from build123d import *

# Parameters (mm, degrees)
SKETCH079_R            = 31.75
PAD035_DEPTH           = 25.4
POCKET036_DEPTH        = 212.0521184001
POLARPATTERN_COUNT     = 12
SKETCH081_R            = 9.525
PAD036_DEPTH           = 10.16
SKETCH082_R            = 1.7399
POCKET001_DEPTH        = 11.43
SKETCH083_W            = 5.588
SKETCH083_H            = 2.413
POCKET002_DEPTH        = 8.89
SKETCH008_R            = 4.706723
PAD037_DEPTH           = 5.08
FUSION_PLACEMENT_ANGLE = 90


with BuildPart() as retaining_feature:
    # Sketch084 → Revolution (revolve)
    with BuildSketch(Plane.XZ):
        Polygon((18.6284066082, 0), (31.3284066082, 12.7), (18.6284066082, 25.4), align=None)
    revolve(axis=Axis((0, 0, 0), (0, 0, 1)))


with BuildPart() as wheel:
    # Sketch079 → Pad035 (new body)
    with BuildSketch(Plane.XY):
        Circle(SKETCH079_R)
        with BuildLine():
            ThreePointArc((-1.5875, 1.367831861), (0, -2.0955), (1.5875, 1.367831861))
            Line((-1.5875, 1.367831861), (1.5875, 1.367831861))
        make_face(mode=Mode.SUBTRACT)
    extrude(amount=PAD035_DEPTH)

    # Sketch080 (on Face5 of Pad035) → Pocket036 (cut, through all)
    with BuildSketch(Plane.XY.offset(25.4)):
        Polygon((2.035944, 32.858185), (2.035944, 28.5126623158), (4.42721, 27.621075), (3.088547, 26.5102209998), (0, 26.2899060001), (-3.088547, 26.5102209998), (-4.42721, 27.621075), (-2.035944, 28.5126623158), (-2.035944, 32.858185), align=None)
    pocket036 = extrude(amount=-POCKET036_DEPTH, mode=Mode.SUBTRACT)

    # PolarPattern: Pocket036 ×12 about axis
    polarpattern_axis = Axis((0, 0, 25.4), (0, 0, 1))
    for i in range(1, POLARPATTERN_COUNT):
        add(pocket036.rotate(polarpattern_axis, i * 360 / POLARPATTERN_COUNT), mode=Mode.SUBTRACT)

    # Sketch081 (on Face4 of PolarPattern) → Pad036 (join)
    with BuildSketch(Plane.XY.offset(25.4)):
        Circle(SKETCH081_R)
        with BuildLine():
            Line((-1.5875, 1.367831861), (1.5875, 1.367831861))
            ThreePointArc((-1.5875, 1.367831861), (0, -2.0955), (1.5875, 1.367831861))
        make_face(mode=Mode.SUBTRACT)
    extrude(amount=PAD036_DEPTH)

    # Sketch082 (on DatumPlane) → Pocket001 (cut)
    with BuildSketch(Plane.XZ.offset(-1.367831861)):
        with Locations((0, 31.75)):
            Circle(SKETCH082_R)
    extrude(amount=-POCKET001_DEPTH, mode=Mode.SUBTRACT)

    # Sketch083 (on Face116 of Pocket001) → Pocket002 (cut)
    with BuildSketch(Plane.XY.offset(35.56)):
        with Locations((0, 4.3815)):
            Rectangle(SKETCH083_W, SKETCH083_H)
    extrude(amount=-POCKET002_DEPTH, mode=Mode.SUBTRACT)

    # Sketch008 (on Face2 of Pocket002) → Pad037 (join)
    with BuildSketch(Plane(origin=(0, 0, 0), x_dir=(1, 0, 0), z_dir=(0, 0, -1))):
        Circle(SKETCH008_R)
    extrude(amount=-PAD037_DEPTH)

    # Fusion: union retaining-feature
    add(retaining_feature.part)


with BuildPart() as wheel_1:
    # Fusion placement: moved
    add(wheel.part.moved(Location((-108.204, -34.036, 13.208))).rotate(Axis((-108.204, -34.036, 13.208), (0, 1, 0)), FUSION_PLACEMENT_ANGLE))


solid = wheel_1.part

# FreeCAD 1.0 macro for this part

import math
import FreeCAD as App
import Part
import Sketcher

V = App.Vector
Q = App.Units.Quantity


def add_polygon(sketch, points):
    """Adds a closed chain of lines whose ends are joined by coincident constraints."""
    first, n = sketch.GeometryCount, len(points)
    for a, b in zip(points, points[1:] + points[:1]):
        sketch.addGeometry(Part.LineSegment(App.Vector(*a, 0), App.Vector(*b, 0)), False)
    for i in range(n):
        sketch.addConstraint(Sketcher.Constraint("Coincident", first + i, 2, first + (i + 1) % n, 1))

doc = App.newDocument("Part")
body = doc.addObject("PartDesign::Body", "Body")

# Sketch on XZ plane
sketch1 = body.newObject("Sketcher::SketchObject", "Sketch")
sketch1.AttachmentSupport = (doc.getObject("XZ_Plane"), [""])
sketch1.MapMode = "FlatFace"
add_polygon(sketch1, [(18.628407, 0), (31.328407, 12.7), (18.628407, 25.4)])  # lines 0-2
sketch1.addConstraint(Sketcher.Constraint("Vertical", 2))
sketch1.addConstraint(Sketcher.Constraint("PointOnObject", 2, 2, -1))
sketch1.addConstraint(Sketcher.Constraint("Perpendicular", 0, 1))
sketch1.addConstraint(Sketcher.Constraint("Equal", 0, 1))
sketch1.addConstraint(Sketcher.Constraint("DistanceY", 2, 2, 2, 1, Q("1 in")))
sketch1.addConstraint(Sketcher.Constraint("DistanceX", -1, 1, 0, 2, Q("31.328407 mm")))
revolution = body.newObject("PartDesign::Revolution", "Revolution")
revolution.Profile = sketch1
revolution.ReferenceAxis = (sketch1, ["V_Axis"])
revolution.Angle = 360
body2 = doc.addObject("PartDesign::Body", "Body001")

# Sketch on XY plane
sketch2 = body2.newObject("Sketcher::SketchObject", "Sketch001")
sketch2.AttachmentSupport = (doc.getObject("XY_Plane001"), [""])
sketch2.MapMode = "FlatFace"
sketch2.addGeometry(Part.Circle(V(0, 0, 0), V(0, 0, 1), 31.75), False)
sketch2.addGeometry(Part.ArcOfCircle(Part.Circle(V(0, 0, 0), V(0, 0, 1), 2.0955), math.radians(139.250946), math.radians(400.749054)), False)
sketch2.addGeometry(Part.LineSegment(V(-1.5875, 1.367832, 0), V(1.5875, 1.367832, 0)), False)
sketch2.addConstraint(Sketcher.Constraint("Coincident", 1, 1, 2, 1))
sketch2.addConstraint(Sketcher.Constraint("Coincident", 2, 2, 1, 2))
sketch2.addConstraint(Sketcher.Constraint("Horizontal", 2))
sketch2.addConstraint(Sketcher.Constraint("Coincident", 0, 3, -1, 1))
sketch2.addConstraint(Sketcher.Constraint("Coincident", 1, 3, -1, 1))
sketch2.addConstraint(Sketcher.Constraint("Diameter", 0, Q("2.5 in")))
sketch2.addConstraint(Sketcher.Constraint("Radius", 1, Q("0.0825 in")))
sketch2.addConstraint(Sketcher.Constraint("DistanceX", 2, 1, 2, 2, Q("0.125 in")))
pad1 = body2.newObject("PartDesign::Pad", "Pad")
pad1.Profile = sketch2
pad1.Length = Q("1 in")

# Sketch on XY plane
sketch3 = body2.newObject("Sketcher::SketchObject", "Sketch002")
sketch3.AttachmentSupport = (doc.getObject("XY_Plane001"), [""])
sketch3.MapMode = "FlatFace"
sketch3.AttachmentOffset = App.Placement(V(0, 0, 1 * 25.4), App.Rotation())
add_polygon(sketch3, [(2.035944, 28.512662), (2.035944, 32.858185), (-2.035944, 32.858185), (-2.035944, 28.512662), (-4.42721, 27.621075), (-3.088547, 26.510221), (0, 26.289906), (3.088547, 26.510221), (4.42721, 27.621075)])  # lines 0-8
sketch3.addConstraint(Sketcher.Constraint("Vertical", 0))
sketch3.addConstraint(Sketcher.Constraint("Horizontal", 1))
sketch3.addConstraint(Sketcher.Constraint("Vertical", 2))
sketch3.addConstraint(Sketcher.Constraint("Symmetric", 4, 2, 6, 2, -2))
sketch3.addConstraint(Sketcher.Constraint("Symmetric", 3, 2, 7, 2, -2))
sketch3.addConstraint(Sketcher.Constraint("Symmetric", 2, 2, 8, 2, -2))
sketch3.addConstraint(Sketcher.Constraint("PointOnObject", 5, 2, -2))
sketch3.addConstraint(Sketcher.Constraint("DistanceX", 1, 2, 1, 1, Q("4.071888 mm")))
sketch3.addConstraint(Sketcher.Constraint("DistanceY", 0, 1, 0, 2, Q("4.345523 mm")))
sketch3.addConstraint(Sketcher.Constraint("DistanceX", 3, 2, -1, 1, Q("4.42721 mm")))
sketch3.addConstraint(Sketcher.Constraint("DistanceY", -1, 1, 4, 2, Q("26.510221 mm")))
sketch3.addConstraint(Sketcher.Constraint("DistanceY", 3, 2, 1, 2, Q("5.23711 mm")))
sketch3.addConstraint(Sketcher.Constraint("DistanceY", 4, 2, 2, 2, Q("2.002441 mm")))
sketch3.addConstraint(Sketcher.Constraint("DistanceX", 4, 2, 0, 2, Q("5.124491 mm")))
sketch3.addConstraint(Sketcher.Constraint("DistanceY", 5, 2, 3, 2, Q("1.331169 mm")))
pocket1 = body2.newObject("PartDesign::Pocket", "Pocket")
pocket1.Profile = sketch3
pocket1.Type = "ThroughAll"
doc.recompute()

polarpattern = body2.newObject("PartDesign::PolarPattern", "PolarPattern")
polarpattern.Originals = [pocket1]
polarpattern.Axis = (doc.getObject("Z_Axis001"), [""])
polarpattern.Angle = 360
polarpattern.Occurrences = 12
body2.Tip = polarpattern

# Sketch on XY plane
sketch4 = body2.newObject("Sketcher::SketchObject", "Sketch003")
sketch4.AttachmentSupport = (doc.getObject("XY_Plane001"), [""])
sketch4.MapMode = "FlatFace"
sketch4.AttachmentOffset = App.Placement(V(0, 0, 1 * 25.4), App.Rotation())
sketch4.addGeometry(Part.Circle(V(0, 0, 0), V(0, 0, 1), 9.525), False)
sketch4.addGeometry(Part.ArcOfCircle(Part.Circle(V(0, 0, 0), V(0, 0, 1), 2.0955), math.radians(139.250946), math.radians(400.749054)), False)
sketch4.addGeometry(Part.LineSegment(V(-1.5875, 1.367832, 0), V(1.5875, 1.367832, 0)), False)
sketch4.addConstraint(Sketcher.Constraint("Coincident", 1, 1, 2, 1))
sketch4.addConstraint(Sketcher.Constraint("Coincident", 2, 2, 1, 2))
sketch4.addConstraint(Sketcher.Constraint("Horizontal", 2))
sketch4.addConstraint(Sketcher.Constraint("Coincident", 0, 3, -1, 1))
sketch4.addConstraint(Sketcher.Constraint("Coincident", 1, 3, -1, 1))
sketch4.addConstraint(Sketcher.Constraint("Diameter", 0, Q("0.75 in")))
sketch4.addConstraint(Sketcher.Constraint("Radius", 1, Q("0.0825 in")))
sketch4.addConstraint(Sketcher.Constraint("DistanceX", 2, 1, 2, 2, Q("0.125 in")))
pad2 = body2.newObject("PartDesign::Pad", "Pad001")
pad2.Profile = sketch4
pad2.Length = Q("0.4 in")

# Sketch on XZ plane
sketch5 = body2.newObject("Sketcher::SketchObject", "Sketch004")
sketch5.AttachmentSupport = (doc.getObject("XZ_Plane001"), [""])
sketch5.MapMode = "FlatFace"
sketch5.AttachmentOffset = App.Placement(V(0, 0, -1.367832), App.Rotation())
sketch5.addGeometry(Part.Circle(V(0, 31.75, 0), V(0, 0, 1), 1.7399), False)
sketch5.addConstraint(Sketcher.Constraint("PointOnObject", 0, 3, -2))
sketch5.addConstraint(Sketcher.Constraint("Diameter", 0, Q("0.137 in")))
sketch5.addConstraint(Sketcher.Constraint("DistanceY", -1, 1, 0, 3, Q("1.25 in")))
pocket2 = body2.newObject("PartDesign::Pocket", "Pocket001")
pocket2.Profile = sketch5
pocket2.Length = Q("0.45 in")

# Sketch on XY plane
sketch6 = body2.newObject("Sketcher::SketchObject", "Sketch005")
sketch6.AttachmentSupport = (doc.getObject("XY_Plane001"), [""])
sketch6.MapMode = "FlatFace"
sketch6.AttachmentOffset = App.Placement(V(0, 0, 1.4 * 25.4), App.Rotation())
add_polygon(sketch6, [(-2.794, 5.588), (-2.794, 3.175), (2.794, 3.175), (2.794, 5.588)])  # lines 0-3
sketch6.addConstraint(Sketcher.Constraint("Vertical", 0))
sketch6.addConstraint(Sketcher.Constraint("Horizontal", 1))
sketch6.addConstraint(Sketcher.Constraint("Vertical", 2))
sketch6.addConstraint(Sketcher.Constraint("Horizontal", 3))
sketch6.addConstraint(Sketcher.Constraint("DistanceX", 1, 1, 1, 2, Q("0.22 in")))
sketch6.addConstraint(Sketcher.Constraint("DistanceY", 0, 2, 0, 1, Q("0.095 in")))
sketch6.addConstraint(Sketcher.Constraint("DistanceX", 0, 2, -1, 1, Q("0.11 in")))
sketch6.addConstraint(Sketcher.Constraint("DistanceY", -1, 1, 2, 2, Q("0.22 in")))
pocket3 = body2.newObject("PartDesign::Pocket", "Pocket002")
pocket3.Profile = sketch6
pocket3.Length = Q("0.35 in")

# Sketch on XY plane
sketch7 = body2.newObject("Sketcher::SketchObject", "Sketch006")
sketch7.AttachmentSupport = (doc.getObject("XY_Plane001"), [""])
sketch7.MapMode = "FlatFace"
sketch7.addGeometry(Part.Circle(V(0, 0, 0), V(0, 0, 1), 4.706723), False)
sketch7.addConstraint(Sketcher.Constraint("Coincident", 0, 3, -1, 1))
sketch7.addConstraint(Sketcher.Constraint("Diameter", 0, Q("9.413446 mm")))
pad3 = body2.newObject("PartDesign::Pad", "Pad002")
pad3.Profile = sketch7
pad3.Length = Q("0.2 in")
doc.recompute()

boolean = body2.newObject("PartDesign::Boolean", "Boolean")
boolean.Type = "Fuse"
boolean.addObjects([body])
body3 = doc.addObject("PartDesign::Body", "Body002")
doc.recompute()

body2.Placement = App.Placement(V(-108.204, -34.036, 13.208), App.Rotation(V(0, 1, 0), 90))
boolean2 = body3.newObject("PartDesign::Boolean", "Boolean001")
boolean2.Type = "Fuse"
boolean2.addObjects([body2])

doc.recompute()
